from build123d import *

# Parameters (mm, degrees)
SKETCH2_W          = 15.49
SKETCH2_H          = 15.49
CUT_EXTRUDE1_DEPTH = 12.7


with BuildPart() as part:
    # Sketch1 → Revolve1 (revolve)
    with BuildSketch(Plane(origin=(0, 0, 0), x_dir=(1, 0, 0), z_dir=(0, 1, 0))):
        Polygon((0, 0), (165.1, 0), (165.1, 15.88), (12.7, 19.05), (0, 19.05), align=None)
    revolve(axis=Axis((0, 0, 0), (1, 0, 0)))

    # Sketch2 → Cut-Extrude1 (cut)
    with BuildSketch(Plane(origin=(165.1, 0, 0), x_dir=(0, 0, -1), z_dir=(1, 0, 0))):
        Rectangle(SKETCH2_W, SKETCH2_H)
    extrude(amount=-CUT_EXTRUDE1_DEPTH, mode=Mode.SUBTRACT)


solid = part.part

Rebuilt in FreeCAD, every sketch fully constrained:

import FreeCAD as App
import Part
import Sketcher
Q = App.Units.Quantity


def add_polygon(sketch, points):
    """Adds a closed chain of lines whose ends are joined by coincident constraints."""
    first, n = sketch.GeometryCount, len(points)
    for a, b in zip(points, points[1:] + points[:1]):
        sketch.addGeometry(Part.LineSegment(App.Vector(*a, 0), App.Vector(*b, 0)), False)
    for i in range(n):
        sketch.addConstraint(Sketcher.Constraint("Coincident", first + i, 2, first + (i + 1) % n, 1))

doc = App.newDocument("Part")
body = doc.addObject("PartDesign::Body", "Body")

# Sketch on XZ plane
sketch1 = doc.addObject("Sketcher::SketchObject", "Sketch")
body.addObject(sketch1)
sketch1.AttachmentSupport = (doc.XZ_Plane, [""])
sketch1.MapMode = "FlatFace"
add_polygon(sketch1, [(0, 0), (165, 0), (165, -16), (13, -19), (0, -19)])  # lines 0-4
sketch1.addConstraint([
    Sketcher.Constraint("Horizontal", 0),
    Sketcher.Constraint("Vertical", 1),
    Sketcher.Constraint("Horizontal", 3),
    Sketcher.Constraint("Vertical", 4),
    Sketcher.Constraint("Coincident", 4, 2, -1, 1),
    Sketcher.Constraint("DistanceX", 0, 1, 0, 2, Q("6.5 in")),
    Sketcher.Constraint("DistanceX", 3, 2, 3, 1, Q("0.5 in")),
    Sketcher.Constraint("DistanceY", 4, 1, 4, 2, Q("0.75 in")),
    Sketcher.Constraint("DistanceY", 1, 2, 1, 1, 15.88),
])
revolution = doc.addObject("PartDesign::Revolution", "Revolution")
body.addObject(revolution)
revolution.Profile = sketch1
revolution.ReferenceAxis = (sketch1, ["H_Axis"])
revolution.Angle = 360

# Sketch on YZ plane
sketch2 = doc.addObject("Sketcher::SketchObject", "Sketch001")
body.addObject(sketch2)
sketch2.AttachmentSupport = (doc.YZ_Plane, [""])
sketch2.MapMode = "FlatFace"
sketch2.AttachmentOffset = App.Placement(App.Vector(0, 0, 6.5 * 25.4), App.Rotation())
add_polygon(sketch2, [(8, 8), (-8, 8), (-8, -8), (8, -8)])  # lines 0-3
sketch2.addConstraint([
    Sketcher.Constraint("Horizontal", 0),
    Sketcher.Constraint("Vertical", 1),
    Sketcher.Constraint("Horizontal", 2),
    Sketcher.Constraint("Vertical", 3),
    Sketcher.Constraint("Symmetric", 0, 2, 2, 2, -1, 1),
    Sketcher.Constraint("Equal", 2, 1),
    Sketcher.Constraint("DistanceX", 0, 2, 0, 1, 15.49),
])
pocket1 = doc.addObject("PartDesign::Pocket", "Pocket")
body.addObject(pocket1)
pocket1.Profile = sketch2
pocket1.Length = Q("0.5 in")

doc.recompute()
